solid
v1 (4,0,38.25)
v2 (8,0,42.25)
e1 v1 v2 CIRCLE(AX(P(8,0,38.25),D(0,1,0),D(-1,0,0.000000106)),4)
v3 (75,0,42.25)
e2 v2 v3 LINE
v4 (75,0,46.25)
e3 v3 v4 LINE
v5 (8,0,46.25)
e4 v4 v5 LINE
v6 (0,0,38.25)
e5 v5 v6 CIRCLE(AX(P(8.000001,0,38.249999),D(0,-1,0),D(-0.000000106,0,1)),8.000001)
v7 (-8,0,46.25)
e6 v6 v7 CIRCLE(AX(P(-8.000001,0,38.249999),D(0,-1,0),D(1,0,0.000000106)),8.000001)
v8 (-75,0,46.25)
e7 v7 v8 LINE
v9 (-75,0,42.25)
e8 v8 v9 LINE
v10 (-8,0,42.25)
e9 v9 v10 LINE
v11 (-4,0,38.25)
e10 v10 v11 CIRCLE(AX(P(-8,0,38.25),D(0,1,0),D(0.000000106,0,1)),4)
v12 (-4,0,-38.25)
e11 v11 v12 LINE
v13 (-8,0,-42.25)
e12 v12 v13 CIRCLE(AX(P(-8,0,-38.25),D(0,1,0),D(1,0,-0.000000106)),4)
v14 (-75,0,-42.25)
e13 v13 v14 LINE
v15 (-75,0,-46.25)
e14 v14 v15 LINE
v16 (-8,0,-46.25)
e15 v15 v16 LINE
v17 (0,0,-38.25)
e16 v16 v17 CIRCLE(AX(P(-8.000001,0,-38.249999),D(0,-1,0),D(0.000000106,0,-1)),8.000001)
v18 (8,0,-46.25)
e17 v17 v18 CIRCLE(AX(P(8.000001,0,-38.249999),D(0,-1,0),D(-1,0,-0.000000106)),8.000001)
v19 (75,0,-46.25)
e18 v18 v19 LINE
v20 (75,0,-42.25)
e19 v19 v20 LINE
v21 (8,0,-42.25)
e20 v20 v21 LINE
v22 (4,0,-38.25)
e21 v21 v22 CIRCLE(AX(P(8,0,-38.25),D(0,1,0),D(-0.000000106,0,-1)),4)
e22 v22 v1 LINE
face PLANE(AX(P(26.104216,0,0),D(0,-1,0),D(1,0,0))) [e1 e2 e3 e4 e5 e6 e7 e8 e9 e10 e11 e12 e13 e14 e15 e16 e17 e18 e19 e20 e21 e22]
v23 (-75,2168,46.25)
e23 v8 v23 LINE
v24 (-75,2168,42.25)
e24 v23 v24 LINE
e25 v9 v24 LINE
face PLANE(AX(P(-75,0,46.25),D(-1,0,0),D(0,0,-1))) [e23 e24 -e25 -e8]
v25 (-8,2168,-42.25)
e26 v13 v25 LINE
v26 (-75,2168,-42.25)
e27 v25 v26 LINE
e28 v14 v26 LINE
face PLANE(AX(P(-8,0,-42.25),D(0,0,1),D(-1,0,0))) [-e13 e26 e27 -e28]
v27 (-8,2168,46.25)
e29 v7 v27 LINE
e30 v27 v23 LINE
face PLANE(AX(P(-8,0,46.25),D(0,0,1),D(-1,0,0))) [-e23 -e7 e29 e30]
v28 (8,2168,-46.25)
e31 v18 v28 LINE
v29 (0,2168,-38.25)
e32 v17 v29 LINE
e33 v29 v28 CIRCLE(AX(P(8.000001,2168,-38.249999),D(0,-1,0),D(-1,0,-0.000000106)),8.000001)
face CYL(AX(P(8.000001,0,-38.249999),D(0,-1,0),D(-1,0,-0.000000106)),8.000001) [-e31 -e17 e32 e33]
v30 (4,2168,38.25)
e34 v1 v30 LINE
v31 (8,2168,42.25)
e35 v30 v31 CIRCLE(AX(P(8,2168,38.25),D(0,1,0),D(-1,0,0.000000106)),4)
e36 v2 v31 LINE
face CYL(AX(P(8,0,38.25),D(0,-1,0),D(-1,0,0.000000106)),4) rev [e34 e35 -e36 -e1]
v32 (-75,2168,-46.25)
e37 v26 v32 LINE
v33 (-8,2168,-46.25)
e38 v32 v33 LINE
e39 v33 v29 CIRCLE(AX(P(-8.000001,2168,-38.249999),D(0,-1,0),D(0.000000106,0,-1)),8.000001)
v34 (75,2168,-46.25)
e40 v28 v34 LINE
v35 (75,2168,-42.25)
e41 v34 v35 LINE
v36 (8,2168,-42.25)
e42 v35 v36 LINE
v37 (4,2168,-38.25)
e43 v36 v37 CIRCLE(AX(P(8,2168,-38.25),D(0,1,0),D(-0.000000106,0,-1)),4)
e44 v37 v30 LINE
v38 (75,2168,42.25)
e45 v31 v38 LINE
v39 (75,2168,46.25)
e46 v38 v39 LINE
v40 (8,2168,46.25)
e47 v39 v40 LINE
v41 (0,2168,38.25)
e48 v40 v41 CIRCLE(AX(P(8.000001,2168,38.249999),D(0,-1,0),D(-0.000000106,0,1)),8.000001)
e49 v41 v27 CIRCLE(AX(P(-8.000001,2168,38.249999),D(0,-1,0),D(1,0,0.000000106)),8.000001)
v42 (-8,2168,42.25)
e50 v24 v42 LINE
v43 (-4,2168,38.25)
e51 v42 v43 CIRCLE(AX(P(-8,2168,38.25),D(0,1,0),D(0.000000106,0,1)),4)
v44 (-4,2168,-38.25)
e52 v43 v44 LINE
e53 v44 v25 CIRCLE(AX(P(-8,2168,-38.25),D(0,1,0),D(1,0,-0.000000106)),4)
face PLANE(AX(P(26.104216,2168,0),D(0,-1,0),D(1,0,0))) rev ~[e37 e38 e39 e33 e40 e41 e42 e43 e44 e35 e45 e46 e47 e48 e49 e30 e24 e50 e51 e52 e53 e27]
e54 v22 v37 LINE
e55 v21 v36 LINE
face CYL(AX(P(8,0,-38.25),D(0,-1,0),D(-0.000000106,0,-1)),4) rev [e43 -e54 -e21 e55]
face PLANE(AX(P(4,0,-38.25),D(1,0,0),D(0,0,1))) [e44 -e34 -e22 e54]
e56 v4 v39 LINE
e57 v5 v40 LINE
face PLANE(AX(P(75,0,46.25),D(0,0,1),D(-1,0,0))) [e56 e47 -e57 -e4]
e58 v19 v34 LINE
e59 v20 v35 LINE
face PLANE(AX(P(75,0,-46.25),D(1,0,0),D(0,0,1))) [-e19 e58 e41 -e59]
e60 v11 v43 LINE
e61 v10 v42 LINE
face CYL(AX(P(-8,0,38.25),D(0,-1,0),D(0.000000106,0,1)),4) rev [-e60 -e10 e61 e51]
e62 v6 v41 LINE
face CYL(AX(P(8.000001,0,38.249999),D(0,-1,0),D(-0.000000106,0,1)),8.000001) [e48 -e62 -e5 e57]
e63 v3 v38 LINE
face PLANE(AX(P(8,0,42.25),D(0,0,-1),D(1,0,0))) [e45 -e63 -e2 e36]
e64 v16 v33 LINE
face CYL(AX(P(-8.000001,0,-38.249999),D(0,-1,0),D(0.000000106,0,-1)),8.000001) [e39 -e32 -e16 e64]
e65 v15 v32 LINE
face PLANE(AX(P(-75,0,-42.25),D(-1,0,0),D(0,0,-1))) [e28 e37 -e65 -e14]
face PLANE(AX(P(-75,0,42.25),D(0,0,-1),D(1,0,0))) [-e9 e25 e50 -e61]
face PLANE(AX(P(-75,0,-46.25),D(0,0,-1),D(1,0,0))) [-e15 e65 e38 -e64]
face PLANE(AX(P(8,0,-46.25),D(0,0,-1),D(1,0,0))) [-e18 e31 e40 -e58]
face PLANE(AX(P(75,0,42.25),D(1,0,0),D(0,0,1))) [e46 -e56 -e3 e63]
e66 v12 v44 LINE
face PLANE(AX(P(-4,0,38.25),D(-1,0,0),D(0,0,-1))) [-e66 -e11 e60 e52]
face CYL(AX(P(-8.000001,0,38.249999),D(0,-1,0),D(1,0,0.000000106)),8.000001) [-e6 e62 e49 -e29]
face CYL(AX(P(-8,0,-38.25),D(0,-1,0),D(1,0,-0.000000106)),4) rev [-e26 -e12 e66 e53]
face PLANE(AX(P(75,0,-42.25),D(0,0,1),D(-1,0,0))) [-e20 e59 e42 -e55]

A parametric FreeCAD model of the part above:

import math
import FreeCAD as App
import Part
import Sketcher

doc = App.newDocument("Part")
body = doc.addObject("PartDesign::Body", "Body")

sketch1 = body.newObject("Sketcher::SketchObject", "Sketch")
sketch1.AttachmentSupport = (doc.getObject("XZ_Plane"), [""])
sketch1.MapMode = "FlatFace"
sketch1.addGeometry([
    Part.ArcOfCircle(Part.Circle(App.Vector(8, -38.2, 0), App.Vector(0, 0, 1), 8), math.radians(-180), math.radians(-90)),
    Part.LineSegment(App.Vector(8, -46.2, 0), App.Vector(75, -46.2, 0)),
    Part.LineSegment(App.Vector(75, -46.2, 0), App.Vector(75, -42.2, 0)),
    Part.LineSegment(App.Vector(75, -42.2, 0), App.Vector(8, -42.2, 0)),
    Part.ArcOfCircle(Part.Circle(App.Vector(8, -38.2, 0), App.Vector(0, 0, 1), 4), math.radians(-180), math.radians(-90)),
    Part.LineSegment(App.Vector(4, -38.2, 0), App.Vector(4, 38.2, 0)),
    Part.ArcOfCircle(Part.Circle(App.Vector(8, 38.2, 0), App.Vector(0, 0, 1), 4), math.radians(90), math.radians(180)),
    Part.LineSegment(App.Vector(8, 42.2, 0), App.Vector(75, 42.2, 0)),
    Part.LineSegment(App.Vector(75, 42.2, 0), App.Vector(75, 46.2, 0)),
    Part.LineSegment(App.Vector(75, 46.2, 0), App.Vector(8, 46.2, 0)),
    Part.ArcOfCircle(Part.Circle(App.Vector(8, 38.2, 0), App.Vector(0, 0, 1), 8), math.radians(90), math.radians(180)),
    Part.ArcOfCircle(Part.Circle(App.Vector(-8, 38.2, 0), App.Vector(0, 0, 1), 8), math.radians(0), math.radians(90)),
    Part.LineSegment(App.Vector(-8, 46.2, 0), App.Vector(-75, 46.2, 0)),
    Part.LineSegment(App.Vector(-75, 46.2, 0), App.Vector(-75, 42.2, 0)),
    Part.LineSegment(App.Vector(-75, 42.2, 0), App.Vector(-8, 42.2, 0)),
    Part.ArcOfCircle(Part.Circle(App.Vector(-8, 38.2, 0), App.Vector(0, 0, 1), 4), math.radians(0), math.radians(90)),
    Part.LineSegment(App.Vector(-4, 38.2, 0), App.Vector(-4, -38.2, 0)),
    Part.ArcOfCircle(Part.Circle(App.Vector(-8, -38.2, 0), App.Vector(0, 0, 1), 4), math.radians(-90), math.radians(0)),
    Part.LineSegment(App.Vector(-8, -42.2, 0), App.Vector(-75, -42.2, 0)),
    Part.LineSegment(App.Vector(-75, -42.2, 0), App.Vector(-75, -46.2, 0)),
    Part.LineSegment(App.Vector(-75, -46.2, 0), App.Vector(-8, -46.2, 0)),
    Part.ArcOfCircle(Part.Circle(App.Vector(-8, -38.2, 0), App.Vector(0, 0, 1), 8), math.radians(-90), math.radians(0)),
], False)
sketch1.addConstraint([
    Sketcher.Constraint("Tangent", 0, 2, 1, 1),
    Sketcher.Constraint("Coincident", 1, 2, 2, 1),
    Sketcher.Constraint("Coincident", 2, 2, 3, 1),
    Sketcher.Constraint("Tangent", 3, 2, 4, 2),
    Sketcher.Constraint("Tangent", 4, 1, 5, 1),
    Sketcher.Constraint("Tangent", 5, 2, 6, 2),
    Sketcher.Constraint("Tangent", 6, 1, 7, 1),
    Sketcher.Constraint("Coincident", 7, 2, 8, 1),
    Sketcher.Constraint("Coincident", 8, 2, 9, 1),
    Sketcher.Constraint("Tangent", 9, 2, 10, 1),
    Sketcher.Constraint("Tangent", 10, 2, 11, 1),
    Sketcher.Constraint("Tangent", 11, 2, 12, 1),
    Sketcher.Constraint("Coincident", 12, 2, 13, 1),
    Sketcher.Constraint("Coincident", 13, 2, 14, 1),
    Sketcher.Constraint("Tangent", 14, 2, 15, 2),
    Sketcher.Constraint("Tangent", 15, 1, 16, 1),
    Sketcher.Constraint("Tangent", 16, 2, 17, 2),
    Sketcher.Constraint("Tangent", 17, 1, 18, 1),
    Sketcher.Constraint("Coincident", 18, 2, 19, 1),
    Sketcher.Constraint("Coincident", 19, 2, 20, 1),
    Sketcher.Constraint("Tangent", 20, 2, 21, 1),
    Sketcher.Constraint("Tangent", 21, 2, 0, 1),
    Sketcher.Constraint("Horizontal", 1),
    Sketcher.Constraint("Vertical", 2),
    Sketcher.Constraint("Horizontal", 3),
    Sketcher.Constraint("Vertical", 5),
    Sketcher.Constraint("Horizontal", 7),
    Sketcher.Constraint("Vertical", 8),
    Sketcher.Constraint("Horizontal", 9),
    Sketcher.Constraint("Horizontal", 12),
    Sketcher.Constraint("Vertical", 13),
    Sketcher.Constraint("Horizontal", 14),
    Sketcher.Constraint("Vertical", 16),
    Sketcher.Constraint("Horizontal", 18),
    Sketcher.Constraint("Vertical", 19),
    Sketcher.Constraint("Horizontal", 20),
    Sketcher.Constraint("Coincident", 4, 3, 0, 3),
    Sketcher.Constraint("Coincident", 10, 3, 6, 3),
    Sketcher.Constraint("Coincident", 15, 3, 11, 3),
    Sketcher.Constraint("Coincident", 21, 3, 17, 3),
    Sketcher.Constraint("Equal", 4, 6),
    Sketcher.Constraint("Equal", 0, 10),
    Sketcher.Constraint("Equal", 10, 11),
    Sketcher.Constraint("Equal", 6, 15),
    Sketcher.Constraint("Equal", 15, 17),
    Sketcher.Constraint("Symmetric", 0, 3, 11, 3, -1, 1),
    Sketcher.Constraint("Symmetric", 7, 2, 18, 2, -1, 1),
    Sketcher.Constraint("Symmetric", 8, 2, 12, 2, -2),
    Sketcher.Constraint("Vertical", 2, 2, 7, 2),
    Sketcher.Constraint("Radius", 0, 8.000001),
    Sketcher.Constraint("Radius", 4, 4.0),
    Sketcher.Constraint("DistanceX", 1, 1, 1, 2, 67.0),
    Sketcher.Constraint("DistanceY", 5, 1, 5, 2, 76.5),
])
pad1 = body.newObject("PartDesign::Pad", "Pad")
pad1.Profile = sketch1
pad1.Length = 2168
pad1.Reversed = True

doc.recompute()
